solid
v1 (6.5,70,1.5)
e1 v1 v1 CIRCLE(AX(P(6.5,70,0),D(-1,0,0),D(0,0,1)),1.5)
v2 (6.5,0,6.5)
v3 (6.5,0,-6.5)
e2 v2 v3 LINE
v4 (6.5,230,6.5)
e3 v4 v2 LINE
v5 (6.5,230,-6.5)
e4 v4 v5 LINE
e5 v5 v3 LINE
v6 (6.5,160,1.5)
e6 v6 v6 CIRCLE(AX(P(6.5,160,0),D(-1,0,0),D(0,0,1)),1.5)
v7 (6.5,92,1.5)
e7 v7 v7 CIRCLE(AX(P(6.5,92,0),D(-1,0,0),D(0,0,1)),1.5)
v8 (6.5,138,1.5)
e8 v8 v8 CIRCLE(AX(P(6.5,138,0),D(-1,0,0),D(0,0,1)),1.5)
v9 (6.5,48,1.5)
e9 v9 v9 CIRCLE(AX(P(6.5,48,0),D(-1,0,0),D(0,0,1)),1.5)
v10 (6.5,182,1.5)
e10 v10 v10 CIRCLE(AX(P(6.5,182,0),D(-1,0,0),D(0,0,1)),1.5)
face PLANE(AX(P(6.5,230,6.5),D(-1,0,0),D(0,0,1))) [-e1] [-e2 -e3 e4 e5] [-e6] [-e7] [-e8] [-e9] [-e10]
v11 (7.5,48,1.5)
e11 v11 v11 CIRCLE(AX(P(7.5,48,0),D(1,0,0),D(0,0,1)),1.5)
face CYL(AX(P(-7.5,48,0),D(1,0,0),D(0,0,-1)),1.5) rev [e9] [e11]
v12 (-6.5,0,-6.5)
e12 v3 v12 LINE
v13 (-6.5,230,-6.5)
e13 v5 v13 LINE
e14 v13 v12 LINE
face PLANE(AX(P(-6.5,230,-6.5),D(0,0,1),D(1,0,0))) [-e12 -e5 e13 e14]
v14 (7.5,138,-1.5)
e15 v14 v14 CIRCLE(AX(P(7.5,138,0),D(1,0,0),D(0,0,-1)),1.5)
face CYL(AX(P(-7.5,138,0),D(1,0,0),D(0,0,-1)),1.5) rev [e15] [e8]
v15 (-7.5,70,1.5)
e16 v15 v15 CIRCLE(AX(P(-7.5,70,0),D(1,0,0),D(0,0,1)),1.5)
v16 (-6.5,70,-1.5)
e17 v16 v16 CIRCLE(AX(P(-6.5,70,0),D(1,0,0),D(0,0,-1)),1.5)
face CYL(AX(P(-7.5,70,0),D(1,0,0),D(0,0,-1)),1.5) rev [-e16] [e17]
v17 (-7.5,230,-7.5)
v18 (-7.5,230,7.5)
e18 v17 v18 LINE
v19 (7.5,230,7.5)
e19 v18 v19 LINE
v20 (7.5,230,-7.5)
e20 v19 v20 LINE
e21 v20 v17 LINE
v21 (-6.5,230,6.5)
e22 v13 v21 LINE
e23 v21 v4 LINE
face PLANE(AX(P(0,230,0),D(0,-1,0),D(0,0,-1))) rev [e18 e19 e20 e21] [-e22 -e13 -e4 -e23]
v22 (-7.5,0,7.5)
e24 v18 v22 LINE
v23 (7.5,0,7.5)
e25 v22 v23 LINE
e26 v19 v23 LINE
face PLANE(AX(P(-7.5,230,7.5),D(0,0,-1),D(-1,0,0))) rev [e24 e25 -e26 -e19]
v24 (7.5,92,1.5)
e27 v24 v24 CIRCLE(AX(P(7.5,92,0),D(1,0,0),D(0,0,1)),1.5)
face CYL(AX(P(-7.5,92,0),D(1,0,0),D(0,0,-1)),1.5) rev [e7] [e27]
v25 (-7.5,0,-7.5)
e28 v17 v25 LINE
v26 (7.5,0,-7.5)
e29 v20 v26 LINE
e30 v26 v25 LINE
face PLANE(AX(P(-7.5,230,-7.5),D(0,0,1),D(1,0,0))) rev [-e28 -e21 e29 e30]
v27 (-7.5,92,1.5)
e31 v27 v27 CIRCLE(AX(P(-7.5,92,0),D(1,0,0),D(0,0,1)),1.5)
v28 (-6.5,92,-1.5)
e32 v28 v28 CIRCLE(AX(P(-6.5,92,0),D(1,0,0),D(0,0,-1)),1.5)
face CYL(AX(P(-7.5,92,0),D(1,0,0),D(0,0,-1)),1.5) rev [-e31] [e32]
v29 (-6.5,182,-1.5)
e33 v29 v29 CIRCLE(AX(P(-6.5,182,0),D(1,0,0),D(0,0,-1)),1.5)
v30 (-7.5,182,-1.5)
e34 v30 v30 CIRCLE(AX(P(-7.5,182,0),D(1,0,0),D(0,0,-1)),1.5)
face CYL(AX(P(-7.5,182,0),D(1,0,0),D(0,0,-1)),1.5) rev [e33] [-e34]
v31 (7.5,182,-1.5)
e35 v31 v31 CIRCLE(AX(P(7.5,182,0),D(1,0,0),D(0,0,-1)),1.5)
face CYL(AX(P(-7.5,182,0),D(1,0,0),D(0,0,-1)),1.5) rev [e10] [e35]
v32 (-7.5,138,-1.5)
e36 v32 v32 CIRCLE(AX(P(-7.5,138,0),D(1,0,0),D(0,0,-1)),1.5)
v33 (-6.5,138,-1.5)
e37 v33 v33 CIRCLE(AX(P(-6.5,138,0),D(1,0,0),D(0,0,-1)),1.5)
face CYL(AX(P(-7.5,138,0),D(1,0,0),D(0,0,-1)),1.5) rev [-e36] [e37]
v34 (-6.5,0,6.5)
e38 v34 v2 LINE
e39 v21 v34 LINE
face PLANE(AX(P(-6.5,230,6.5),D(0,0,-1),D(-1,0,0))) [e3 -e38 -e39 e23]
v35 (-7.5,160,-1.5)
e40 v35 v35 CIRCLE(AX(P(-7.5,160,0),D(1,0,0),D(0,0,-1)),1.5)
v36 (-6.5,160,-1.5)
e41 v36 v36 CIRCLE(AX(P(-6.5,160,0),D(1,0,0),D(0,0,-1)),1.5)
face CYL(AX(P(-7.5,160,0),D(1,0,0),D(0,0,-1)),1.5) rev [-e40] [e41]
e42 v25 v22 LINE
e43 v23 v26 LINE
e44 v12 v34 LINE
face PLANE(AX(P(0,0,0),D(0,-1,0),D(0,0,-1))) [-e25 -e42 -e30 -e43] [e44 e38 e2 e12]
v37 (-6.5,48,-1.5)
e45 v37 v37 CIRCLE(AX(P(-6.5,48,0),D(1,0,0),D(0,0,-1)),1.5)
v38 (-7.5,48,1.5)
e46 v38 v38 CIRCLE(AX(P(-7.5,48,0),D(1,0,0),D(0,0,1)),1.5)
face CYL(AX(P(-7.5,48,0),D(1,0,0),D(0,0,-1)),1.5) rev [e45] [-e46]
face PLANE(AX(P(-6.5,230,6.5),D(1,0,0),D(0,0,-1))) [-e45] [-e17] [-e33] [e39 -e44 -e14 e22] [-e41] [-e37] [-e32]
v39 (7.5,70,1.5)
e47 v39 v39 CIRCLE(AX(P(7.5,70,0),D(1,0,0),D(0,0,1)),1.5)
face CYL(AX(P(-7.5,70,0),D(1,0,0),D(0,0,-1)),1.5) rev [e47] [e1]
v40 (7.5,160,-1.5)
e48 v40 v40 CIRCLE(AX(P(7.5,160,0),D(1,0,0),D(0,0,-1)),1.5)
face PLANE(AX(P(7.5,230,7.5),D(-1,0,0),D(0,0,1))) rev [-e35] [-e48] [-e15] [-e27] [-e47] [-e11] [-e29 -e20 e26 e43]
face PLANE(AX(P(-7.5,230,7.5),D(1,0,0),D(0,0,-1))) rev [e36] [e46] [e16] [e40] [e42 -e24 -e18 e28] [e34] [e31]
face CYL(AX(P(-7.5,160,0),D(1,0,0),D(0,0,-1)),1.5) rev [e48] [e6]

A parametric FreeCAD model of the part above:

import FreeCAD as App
import Part
import Sketcher

V = App.Vector
Q = App.Units.Quantity

doc = App.newDocument("Part")
body = doc.addObject("PartDesign::Body", "Body")

# Sketch on XZ plane
sketch1 = body.newObject("Sketcher::SketchObject", "Sketch")
sketch1.AttachmentSupport = (doc.getObject("XZ_Plane"), [""])
sketch1.MapMode = "FlatFace"
sketch1.addGeometry([
    Part.LineSegment(V(-8, -8, 0), V(-8, 8, 0)),  # 0
    Part.LineSegment(V(-8, 8, 0), V(8, 8, 0)),  # 1
    Part.LineSegment(V(8, 8, 0), V(8, -8, 0)),  # 2
    Part.LineSegment(V(8, -8, 0), V(-8, -8, 0)),  # 3
    Part.LineSegment(V(6, 6, 0), V(-6, 6, 0)),  # 4
    Part.LineSegment(V(-6, 6, 0), V(-6, -6, 0)),  # 5
    Part.LineSegment(V(-6, -6, 0), V(6, -6, 0)),  # 6
    Part.LineSegment(V(6, -6, 0), V(6, 6, 0)),  # 7
], False)
sketch1.addConstraint([
    Sketcher.Constraint("Coincident", 0, 2, 1, 1),
    Sketcher.Constraint("Coincident", 1, 2, 2, 1),
    Sketcher.Constraint("Coincident", 2, 2, 3, 1),
    Sketcher.Constraint("Coincident", 3, 2, 0, 1),
    Sketcher.Constraint("Coincident", 4, 2, 5, 1),
    Sketcher.Constraint("Coincident", 5, 2, 6, 1),
    Sketcher.Constraint("Coincident", 6, 2, 7, 1),
    Sketcher.Constraint("Coincident", 7, 2, 4, 1),
    Sketcher.Constraint("Vertical", 0),
    Sketcher.Constraint("Horizontal", 1),
    Sketcher.Constraint("Vertical", 2),
    Sketcher.Constraint("Horizontal", 3),
    Sketcher.Constraint("Horizontal", 4),
    Sketcher.Constraint("Vertical", 5),
    Sketcher.Constraint("Horizontal", 6),
    Sketcher.Constraint("Vertical", 7),
    Sketcher.Constraint("Symmetric", 0, 2, 2, 2, -1, 1),
    Sketcher.Constraint("Symmetric", 4, 2, 6, 2, -1, 1),
    Sketcher.Constraint("Equal", 3, 0),
    Sketcher.Constraint("Equal", 6, 5),
    Sketcher.Constraint("DistanceX", 1, 1, 1, 2, Q("15 mm")),
    Sketcher.Constraint("DistanceX", 4, 2, 4, 1, Q("13 mm")),
])
pad1 = body.newObject("PartDesign::Pad", "Pad")
pad1.Profile = sketch1
pad1.Length = 230
pad1.Reversed = True

# Sketch on YZ plane
sketch2 = body.newObject("Sketcher::SketchObject", "Sketch001")
sketch2.AttachmentSupport = (doc.getObject("YZ_Plane"), [""])
sketch2.MapMode = "FlatFace"
sketch2.AttachmentOffset = App.Placement(V(0, 0, 7.5), App.Rotation())
sketch2.addGeometry([
    Part.Circle(V(160, 0, 0), V(0, 0, 1), 1.5),  # 0
    Part.Circle(V(138, 0, 0), V(0, 0, 1), 1.5),  # 1
    Part.Circle(V(182, 0, 0), V(0, 0, 1), 1.5),  # 2
    Part.Circle(V(48, 0, 0), V(0, 0, 1), 1.5),  # 3
    Part.Circle(V(92, 0, 0), V(0, 0, 1), 1.5),  # 4
    Part.Circle(V(70, 0, 0), V(0, 0, 1), 1.5),  # 5
], False)
sketch2.addConstraint([
    Sketcher.Constraint("Equal", 0, 1),
    Sketcher.Constraint("Equal", 1, 2),
    Sketcher.Constraint("Equal", 2, 3),
    Sketcher.Constraint("Equal", 3, 4),
    Sketcher.Constraint("Equal", 4, 5),
    Sketcher.Constraint("PointOnObject", 0, 3, -1),
    Sketcher.Constraint("PointOnObject", 1, 3, -1),
    Sketcher.Constraint("PointOnObject", 2, 3, -1),
    Sketcher.Constraint("PointOnObject", 3, 3, -1),
    Sketcher.Constraint("PointOnObject", 4, 3, -1),
    Sketcher.Constraint("PointOnObject", 5, 3, -1),
    Sketcher.Constraint("Diameter", 0, Q("3 mm")),
    Sketcher.Constraint("DistanceX", -1, 1, 0, 3, Q("160 mm")),
    Sketcher.Constraint("DistanceX", -1, 1, 1, 3, Q("138 mm")),
    Sketcher.Constraint("DistanceX", -1, 1, 2, 3, Q("182 mm")),
    Sketcher.Constraint("DistanceX", -1, 1, 3, 3, Q("48 mm")),
    Sketcher.Constraint("DistanceX", -1, 1, 4, 3, Q("92 mm")),
    Sketcher.Constraint("DistanceX", -1, 1, 5, 3, Q("70 mm")),
])
pocket1 = body.newObject("PartDesign::Pocket", "Pocket")
pocket1.Profile = sketch2
pocket1.Type = "ThroughAll"

doc.recompute()
